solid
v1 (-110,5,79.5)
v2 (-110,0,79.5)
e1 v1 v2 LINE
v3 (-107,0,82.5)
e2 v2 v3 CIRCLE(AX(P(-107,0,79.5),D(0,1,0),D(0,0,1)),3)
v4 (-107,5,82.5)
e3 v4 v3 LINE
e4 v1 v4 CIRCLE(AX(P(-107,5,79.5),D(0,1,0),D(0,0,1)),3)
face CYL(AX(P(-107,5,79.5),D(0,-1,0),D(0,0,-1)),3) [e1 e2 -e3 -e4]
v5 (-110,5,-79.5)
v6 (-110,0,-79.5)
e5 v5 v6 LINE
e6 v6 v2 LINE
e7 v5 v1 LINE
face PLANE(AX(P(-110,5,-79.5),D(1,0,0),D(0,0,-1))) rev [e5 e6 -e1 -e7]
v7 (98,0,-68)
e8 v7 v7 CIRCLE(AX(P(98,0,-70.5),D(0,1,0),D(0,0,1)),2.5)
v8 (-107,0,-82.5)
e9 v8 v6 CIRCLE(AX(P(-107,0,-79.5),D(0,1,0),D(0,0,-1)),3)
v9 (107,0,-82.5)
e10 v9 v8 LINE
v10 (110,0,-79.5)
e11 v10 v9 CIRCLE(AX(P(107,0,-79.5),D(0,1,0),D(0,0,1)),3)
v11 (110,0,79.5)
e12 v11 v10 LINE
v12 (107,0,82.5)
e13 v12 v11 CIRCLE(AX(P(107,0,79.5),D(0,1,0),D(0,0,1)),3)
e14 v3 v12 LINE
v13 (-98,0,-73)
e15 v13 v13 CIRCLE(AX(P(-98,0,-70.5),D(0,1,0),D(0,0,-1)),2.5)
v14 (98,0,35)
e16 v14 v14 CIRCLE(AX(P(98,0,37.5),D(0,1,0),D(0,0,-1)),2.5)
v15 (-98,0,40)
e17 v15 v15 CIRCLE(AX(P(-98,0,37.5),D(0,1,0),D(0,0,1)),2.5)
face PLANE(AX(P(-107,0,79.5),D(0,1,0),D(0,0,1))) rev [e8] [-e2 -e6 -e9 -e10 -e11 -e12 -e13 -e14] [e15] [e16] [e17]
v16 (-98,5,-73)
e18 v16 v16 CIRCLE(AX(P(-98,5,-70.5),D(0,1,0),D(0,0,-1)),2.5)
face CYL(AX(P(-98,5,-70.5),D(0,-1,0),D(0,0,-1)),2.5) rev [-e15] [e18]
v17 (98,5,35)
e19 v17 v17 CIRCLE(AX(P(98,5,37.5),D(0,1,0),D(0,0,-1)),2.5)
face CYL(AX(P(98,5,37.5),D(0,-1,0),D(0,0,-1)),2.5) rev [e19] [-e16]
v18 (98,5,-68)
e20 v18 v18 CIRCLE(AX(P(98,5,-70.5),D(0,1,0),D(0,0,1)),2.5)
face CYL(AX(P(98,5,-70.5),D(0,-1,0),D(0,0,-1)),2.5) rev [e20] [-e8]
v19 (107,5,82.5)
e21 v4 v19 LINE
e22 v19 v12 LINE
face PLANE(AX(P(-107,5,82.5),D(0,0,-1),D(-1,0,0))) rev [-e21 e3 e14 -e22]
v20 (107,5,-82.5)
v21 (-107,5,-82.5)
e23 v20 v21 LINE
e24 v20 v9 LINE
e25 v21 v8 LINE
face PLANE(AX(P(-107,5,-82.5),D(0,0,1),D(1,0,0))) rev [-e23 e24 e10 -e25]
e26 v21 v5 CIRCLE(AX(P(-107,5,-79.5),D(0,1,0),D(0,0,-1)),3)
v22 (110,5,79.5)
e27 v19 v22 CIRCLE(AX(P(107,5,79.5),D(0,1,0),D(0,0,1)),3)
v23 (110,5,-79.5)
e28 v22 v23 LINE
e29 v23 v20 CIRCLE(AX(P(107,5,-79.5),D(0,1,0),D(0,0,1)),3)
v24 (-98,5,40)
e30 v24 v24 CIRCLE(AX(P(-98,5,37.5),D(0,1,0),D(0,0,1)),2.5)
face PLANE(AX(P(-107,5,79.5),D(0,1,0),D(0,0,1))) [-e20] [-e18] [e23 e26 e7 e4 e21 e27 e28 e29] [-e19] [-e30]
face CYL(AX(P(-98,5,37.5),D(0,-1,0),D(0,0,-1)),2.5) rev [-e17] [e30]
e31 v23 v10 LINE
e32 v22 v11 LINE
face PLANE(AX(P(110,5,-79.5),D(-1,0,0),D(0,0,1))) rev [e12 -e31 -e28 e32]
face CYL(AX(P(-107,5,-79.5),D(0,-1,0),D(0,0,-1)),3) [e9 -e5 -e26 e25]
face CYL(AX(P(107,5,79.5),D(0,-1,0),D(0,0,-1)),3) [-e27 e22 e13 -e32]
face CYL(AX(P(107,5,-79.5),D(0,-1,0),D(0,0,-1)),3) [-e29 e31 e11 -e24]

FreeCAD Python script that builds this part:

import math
import FreeCAD as App
import Part
import Sketcher
from FreeCAD import Vector
Q = App.Units.Quantity

doc = App.newDocument("Part")
body = doc.addObject("PartDesign::Body", "Body")

sketch1 = doc.addObject("Sketcher::SketchObject", "Sketch")
body.addObject(sketch1)
sketch1.AttachmentSupport = (doc.XZ_Plane, [""])
sketch1.MapMode = "FlatFace"
sketch1.addGeometry([
    Part.LineSegment(Vector(107, -82.5, 0), Vector(-107, -82.5, 0)),
    Part.ArcOfCircle(Part.Circle(Vector(-107, -79.5, 0), Vector(0, 0, 1), 3), math.radians(180), math.radians(270)),
    Part.LineSegment(Vector(-110, -79.5, 0), Vector(-110, 79.5, 0)),
    Part.ArcOfCircle(Part.Circle(Vector(-107, 79.5, 0), Vector(0, 0, 1), 3), math.radians(90), math.radians(180)),
    Part.LineSegment(Vector(-107, 82.5, 0), Vector(107, 82.5, 0)),
    Part.ArcOfCircle(Part.Circle(Vector(107, 79.5, 0), Vector(0, 0, 1), 3), math.radians(0), math.radians(90)),
    Part.LineSegment(Vector(110, 79.5, 0), Vector(110, -79.5, 0)),
    Part.ArcOfCircle(Part.Circle(Vector(107, -79.5, 0), Vector(0, 0, 1), 3), math.radians(-90), math.radians(0)),
    Part.Circle(Vector(98, 37.5, 0), Vector(0, 0, 1), 2.5),
    Part.Circle(Vector(-98, 37.5, 0), Vector(0, 0, 1), 2.5),
    Part.Circle(Vector(98, -70.5, 0), Vector(0, 0, 1), 2.5),
    Part.Circle(Vector(-98, -70.5, 0), Vector(0, 0, 1), 2.5),
], False)
sketch1.addConstraint([
    Sketcher.Constraint("Tangent", 0, 2, 1, 2),
    Sketcher.Constraint("Tangent", 1, 1, 2, 1),
    Sketcher.Constraint("Tangent", 2, 2, 3, 2),
    Sketcher.Constraint("Tangent", 3, 1, 4, 1),
    Sketcher.Constraint("Tangent", 4, 2, 5, 2),
    Sketcher.Constraint("Tangent", 5, 1, 6, 1),
    Sketcher.Constraint("Tangent", 6, 2, 7, 2),
    Sketcher.Constraint("Tangent", 7, 1, 0, 1),
    Sketcher.Constraint("Horizontal", 0),
    Sketcher.Constraint("Vertical", 2),
    Sketcher.Constraint("Horizontal", 4),
    Sketcher.Constraint("Vertical", 6),
    Sketcher.Constraint("Equal", 1, 3),
    Sketcher.Constraint("Equal", 3, 5),
    Sketcher.Constraint("Equal", 5, 7),
    Sketcher.Constraint("Equal", 8, 9),
    Sketcher.Constraint("Equal", 9, 10),
    Sketcher.Constraint("Equal", 10, 11),
    Sketcher.Constraint("Symmetric", 1, 3, 5, 3, -1, 1),
    Sketcher.Constraint("Symmetric", 8, 3, 9, 3, -2),
    Sketcher.Constraint("Symmetric", 10, 3, 11, 3, -2),
    Sketcher.Constraint("Vertical", 8, 3, 10, 3),
    Sketcher.Constraint("Diameter", 8, Q("5 mm")),
    Sketcher.Constraint("Radius", 1, Q("3 mm")),
    Sketcher.Constraint("DistanceX", 0, 2, 0, 1, Q("214 mm")),
    Sketcher.Constraint("DistanceY", 2, 1, 2, 2, Q("159 mm")),
    Sketcher.Constraint("DistanceX", -1, 1, 8, 3, Q("98 mm")),
    Sketcher.Constraint("DistanceY", 8, 3, 5, 3, Q("42 mm")),
    Sketcher.Constraint("DistanceY", 7, 3, 10, 3, Q("9 mm")),
])
pad1 = doc.addObject("PartDesign::Pad", "Pad")
body.addObject(pad1)
pad1.Profile = sketch1
pad1.Length = 5
pad1.Reversed = True

doc.recompute()
